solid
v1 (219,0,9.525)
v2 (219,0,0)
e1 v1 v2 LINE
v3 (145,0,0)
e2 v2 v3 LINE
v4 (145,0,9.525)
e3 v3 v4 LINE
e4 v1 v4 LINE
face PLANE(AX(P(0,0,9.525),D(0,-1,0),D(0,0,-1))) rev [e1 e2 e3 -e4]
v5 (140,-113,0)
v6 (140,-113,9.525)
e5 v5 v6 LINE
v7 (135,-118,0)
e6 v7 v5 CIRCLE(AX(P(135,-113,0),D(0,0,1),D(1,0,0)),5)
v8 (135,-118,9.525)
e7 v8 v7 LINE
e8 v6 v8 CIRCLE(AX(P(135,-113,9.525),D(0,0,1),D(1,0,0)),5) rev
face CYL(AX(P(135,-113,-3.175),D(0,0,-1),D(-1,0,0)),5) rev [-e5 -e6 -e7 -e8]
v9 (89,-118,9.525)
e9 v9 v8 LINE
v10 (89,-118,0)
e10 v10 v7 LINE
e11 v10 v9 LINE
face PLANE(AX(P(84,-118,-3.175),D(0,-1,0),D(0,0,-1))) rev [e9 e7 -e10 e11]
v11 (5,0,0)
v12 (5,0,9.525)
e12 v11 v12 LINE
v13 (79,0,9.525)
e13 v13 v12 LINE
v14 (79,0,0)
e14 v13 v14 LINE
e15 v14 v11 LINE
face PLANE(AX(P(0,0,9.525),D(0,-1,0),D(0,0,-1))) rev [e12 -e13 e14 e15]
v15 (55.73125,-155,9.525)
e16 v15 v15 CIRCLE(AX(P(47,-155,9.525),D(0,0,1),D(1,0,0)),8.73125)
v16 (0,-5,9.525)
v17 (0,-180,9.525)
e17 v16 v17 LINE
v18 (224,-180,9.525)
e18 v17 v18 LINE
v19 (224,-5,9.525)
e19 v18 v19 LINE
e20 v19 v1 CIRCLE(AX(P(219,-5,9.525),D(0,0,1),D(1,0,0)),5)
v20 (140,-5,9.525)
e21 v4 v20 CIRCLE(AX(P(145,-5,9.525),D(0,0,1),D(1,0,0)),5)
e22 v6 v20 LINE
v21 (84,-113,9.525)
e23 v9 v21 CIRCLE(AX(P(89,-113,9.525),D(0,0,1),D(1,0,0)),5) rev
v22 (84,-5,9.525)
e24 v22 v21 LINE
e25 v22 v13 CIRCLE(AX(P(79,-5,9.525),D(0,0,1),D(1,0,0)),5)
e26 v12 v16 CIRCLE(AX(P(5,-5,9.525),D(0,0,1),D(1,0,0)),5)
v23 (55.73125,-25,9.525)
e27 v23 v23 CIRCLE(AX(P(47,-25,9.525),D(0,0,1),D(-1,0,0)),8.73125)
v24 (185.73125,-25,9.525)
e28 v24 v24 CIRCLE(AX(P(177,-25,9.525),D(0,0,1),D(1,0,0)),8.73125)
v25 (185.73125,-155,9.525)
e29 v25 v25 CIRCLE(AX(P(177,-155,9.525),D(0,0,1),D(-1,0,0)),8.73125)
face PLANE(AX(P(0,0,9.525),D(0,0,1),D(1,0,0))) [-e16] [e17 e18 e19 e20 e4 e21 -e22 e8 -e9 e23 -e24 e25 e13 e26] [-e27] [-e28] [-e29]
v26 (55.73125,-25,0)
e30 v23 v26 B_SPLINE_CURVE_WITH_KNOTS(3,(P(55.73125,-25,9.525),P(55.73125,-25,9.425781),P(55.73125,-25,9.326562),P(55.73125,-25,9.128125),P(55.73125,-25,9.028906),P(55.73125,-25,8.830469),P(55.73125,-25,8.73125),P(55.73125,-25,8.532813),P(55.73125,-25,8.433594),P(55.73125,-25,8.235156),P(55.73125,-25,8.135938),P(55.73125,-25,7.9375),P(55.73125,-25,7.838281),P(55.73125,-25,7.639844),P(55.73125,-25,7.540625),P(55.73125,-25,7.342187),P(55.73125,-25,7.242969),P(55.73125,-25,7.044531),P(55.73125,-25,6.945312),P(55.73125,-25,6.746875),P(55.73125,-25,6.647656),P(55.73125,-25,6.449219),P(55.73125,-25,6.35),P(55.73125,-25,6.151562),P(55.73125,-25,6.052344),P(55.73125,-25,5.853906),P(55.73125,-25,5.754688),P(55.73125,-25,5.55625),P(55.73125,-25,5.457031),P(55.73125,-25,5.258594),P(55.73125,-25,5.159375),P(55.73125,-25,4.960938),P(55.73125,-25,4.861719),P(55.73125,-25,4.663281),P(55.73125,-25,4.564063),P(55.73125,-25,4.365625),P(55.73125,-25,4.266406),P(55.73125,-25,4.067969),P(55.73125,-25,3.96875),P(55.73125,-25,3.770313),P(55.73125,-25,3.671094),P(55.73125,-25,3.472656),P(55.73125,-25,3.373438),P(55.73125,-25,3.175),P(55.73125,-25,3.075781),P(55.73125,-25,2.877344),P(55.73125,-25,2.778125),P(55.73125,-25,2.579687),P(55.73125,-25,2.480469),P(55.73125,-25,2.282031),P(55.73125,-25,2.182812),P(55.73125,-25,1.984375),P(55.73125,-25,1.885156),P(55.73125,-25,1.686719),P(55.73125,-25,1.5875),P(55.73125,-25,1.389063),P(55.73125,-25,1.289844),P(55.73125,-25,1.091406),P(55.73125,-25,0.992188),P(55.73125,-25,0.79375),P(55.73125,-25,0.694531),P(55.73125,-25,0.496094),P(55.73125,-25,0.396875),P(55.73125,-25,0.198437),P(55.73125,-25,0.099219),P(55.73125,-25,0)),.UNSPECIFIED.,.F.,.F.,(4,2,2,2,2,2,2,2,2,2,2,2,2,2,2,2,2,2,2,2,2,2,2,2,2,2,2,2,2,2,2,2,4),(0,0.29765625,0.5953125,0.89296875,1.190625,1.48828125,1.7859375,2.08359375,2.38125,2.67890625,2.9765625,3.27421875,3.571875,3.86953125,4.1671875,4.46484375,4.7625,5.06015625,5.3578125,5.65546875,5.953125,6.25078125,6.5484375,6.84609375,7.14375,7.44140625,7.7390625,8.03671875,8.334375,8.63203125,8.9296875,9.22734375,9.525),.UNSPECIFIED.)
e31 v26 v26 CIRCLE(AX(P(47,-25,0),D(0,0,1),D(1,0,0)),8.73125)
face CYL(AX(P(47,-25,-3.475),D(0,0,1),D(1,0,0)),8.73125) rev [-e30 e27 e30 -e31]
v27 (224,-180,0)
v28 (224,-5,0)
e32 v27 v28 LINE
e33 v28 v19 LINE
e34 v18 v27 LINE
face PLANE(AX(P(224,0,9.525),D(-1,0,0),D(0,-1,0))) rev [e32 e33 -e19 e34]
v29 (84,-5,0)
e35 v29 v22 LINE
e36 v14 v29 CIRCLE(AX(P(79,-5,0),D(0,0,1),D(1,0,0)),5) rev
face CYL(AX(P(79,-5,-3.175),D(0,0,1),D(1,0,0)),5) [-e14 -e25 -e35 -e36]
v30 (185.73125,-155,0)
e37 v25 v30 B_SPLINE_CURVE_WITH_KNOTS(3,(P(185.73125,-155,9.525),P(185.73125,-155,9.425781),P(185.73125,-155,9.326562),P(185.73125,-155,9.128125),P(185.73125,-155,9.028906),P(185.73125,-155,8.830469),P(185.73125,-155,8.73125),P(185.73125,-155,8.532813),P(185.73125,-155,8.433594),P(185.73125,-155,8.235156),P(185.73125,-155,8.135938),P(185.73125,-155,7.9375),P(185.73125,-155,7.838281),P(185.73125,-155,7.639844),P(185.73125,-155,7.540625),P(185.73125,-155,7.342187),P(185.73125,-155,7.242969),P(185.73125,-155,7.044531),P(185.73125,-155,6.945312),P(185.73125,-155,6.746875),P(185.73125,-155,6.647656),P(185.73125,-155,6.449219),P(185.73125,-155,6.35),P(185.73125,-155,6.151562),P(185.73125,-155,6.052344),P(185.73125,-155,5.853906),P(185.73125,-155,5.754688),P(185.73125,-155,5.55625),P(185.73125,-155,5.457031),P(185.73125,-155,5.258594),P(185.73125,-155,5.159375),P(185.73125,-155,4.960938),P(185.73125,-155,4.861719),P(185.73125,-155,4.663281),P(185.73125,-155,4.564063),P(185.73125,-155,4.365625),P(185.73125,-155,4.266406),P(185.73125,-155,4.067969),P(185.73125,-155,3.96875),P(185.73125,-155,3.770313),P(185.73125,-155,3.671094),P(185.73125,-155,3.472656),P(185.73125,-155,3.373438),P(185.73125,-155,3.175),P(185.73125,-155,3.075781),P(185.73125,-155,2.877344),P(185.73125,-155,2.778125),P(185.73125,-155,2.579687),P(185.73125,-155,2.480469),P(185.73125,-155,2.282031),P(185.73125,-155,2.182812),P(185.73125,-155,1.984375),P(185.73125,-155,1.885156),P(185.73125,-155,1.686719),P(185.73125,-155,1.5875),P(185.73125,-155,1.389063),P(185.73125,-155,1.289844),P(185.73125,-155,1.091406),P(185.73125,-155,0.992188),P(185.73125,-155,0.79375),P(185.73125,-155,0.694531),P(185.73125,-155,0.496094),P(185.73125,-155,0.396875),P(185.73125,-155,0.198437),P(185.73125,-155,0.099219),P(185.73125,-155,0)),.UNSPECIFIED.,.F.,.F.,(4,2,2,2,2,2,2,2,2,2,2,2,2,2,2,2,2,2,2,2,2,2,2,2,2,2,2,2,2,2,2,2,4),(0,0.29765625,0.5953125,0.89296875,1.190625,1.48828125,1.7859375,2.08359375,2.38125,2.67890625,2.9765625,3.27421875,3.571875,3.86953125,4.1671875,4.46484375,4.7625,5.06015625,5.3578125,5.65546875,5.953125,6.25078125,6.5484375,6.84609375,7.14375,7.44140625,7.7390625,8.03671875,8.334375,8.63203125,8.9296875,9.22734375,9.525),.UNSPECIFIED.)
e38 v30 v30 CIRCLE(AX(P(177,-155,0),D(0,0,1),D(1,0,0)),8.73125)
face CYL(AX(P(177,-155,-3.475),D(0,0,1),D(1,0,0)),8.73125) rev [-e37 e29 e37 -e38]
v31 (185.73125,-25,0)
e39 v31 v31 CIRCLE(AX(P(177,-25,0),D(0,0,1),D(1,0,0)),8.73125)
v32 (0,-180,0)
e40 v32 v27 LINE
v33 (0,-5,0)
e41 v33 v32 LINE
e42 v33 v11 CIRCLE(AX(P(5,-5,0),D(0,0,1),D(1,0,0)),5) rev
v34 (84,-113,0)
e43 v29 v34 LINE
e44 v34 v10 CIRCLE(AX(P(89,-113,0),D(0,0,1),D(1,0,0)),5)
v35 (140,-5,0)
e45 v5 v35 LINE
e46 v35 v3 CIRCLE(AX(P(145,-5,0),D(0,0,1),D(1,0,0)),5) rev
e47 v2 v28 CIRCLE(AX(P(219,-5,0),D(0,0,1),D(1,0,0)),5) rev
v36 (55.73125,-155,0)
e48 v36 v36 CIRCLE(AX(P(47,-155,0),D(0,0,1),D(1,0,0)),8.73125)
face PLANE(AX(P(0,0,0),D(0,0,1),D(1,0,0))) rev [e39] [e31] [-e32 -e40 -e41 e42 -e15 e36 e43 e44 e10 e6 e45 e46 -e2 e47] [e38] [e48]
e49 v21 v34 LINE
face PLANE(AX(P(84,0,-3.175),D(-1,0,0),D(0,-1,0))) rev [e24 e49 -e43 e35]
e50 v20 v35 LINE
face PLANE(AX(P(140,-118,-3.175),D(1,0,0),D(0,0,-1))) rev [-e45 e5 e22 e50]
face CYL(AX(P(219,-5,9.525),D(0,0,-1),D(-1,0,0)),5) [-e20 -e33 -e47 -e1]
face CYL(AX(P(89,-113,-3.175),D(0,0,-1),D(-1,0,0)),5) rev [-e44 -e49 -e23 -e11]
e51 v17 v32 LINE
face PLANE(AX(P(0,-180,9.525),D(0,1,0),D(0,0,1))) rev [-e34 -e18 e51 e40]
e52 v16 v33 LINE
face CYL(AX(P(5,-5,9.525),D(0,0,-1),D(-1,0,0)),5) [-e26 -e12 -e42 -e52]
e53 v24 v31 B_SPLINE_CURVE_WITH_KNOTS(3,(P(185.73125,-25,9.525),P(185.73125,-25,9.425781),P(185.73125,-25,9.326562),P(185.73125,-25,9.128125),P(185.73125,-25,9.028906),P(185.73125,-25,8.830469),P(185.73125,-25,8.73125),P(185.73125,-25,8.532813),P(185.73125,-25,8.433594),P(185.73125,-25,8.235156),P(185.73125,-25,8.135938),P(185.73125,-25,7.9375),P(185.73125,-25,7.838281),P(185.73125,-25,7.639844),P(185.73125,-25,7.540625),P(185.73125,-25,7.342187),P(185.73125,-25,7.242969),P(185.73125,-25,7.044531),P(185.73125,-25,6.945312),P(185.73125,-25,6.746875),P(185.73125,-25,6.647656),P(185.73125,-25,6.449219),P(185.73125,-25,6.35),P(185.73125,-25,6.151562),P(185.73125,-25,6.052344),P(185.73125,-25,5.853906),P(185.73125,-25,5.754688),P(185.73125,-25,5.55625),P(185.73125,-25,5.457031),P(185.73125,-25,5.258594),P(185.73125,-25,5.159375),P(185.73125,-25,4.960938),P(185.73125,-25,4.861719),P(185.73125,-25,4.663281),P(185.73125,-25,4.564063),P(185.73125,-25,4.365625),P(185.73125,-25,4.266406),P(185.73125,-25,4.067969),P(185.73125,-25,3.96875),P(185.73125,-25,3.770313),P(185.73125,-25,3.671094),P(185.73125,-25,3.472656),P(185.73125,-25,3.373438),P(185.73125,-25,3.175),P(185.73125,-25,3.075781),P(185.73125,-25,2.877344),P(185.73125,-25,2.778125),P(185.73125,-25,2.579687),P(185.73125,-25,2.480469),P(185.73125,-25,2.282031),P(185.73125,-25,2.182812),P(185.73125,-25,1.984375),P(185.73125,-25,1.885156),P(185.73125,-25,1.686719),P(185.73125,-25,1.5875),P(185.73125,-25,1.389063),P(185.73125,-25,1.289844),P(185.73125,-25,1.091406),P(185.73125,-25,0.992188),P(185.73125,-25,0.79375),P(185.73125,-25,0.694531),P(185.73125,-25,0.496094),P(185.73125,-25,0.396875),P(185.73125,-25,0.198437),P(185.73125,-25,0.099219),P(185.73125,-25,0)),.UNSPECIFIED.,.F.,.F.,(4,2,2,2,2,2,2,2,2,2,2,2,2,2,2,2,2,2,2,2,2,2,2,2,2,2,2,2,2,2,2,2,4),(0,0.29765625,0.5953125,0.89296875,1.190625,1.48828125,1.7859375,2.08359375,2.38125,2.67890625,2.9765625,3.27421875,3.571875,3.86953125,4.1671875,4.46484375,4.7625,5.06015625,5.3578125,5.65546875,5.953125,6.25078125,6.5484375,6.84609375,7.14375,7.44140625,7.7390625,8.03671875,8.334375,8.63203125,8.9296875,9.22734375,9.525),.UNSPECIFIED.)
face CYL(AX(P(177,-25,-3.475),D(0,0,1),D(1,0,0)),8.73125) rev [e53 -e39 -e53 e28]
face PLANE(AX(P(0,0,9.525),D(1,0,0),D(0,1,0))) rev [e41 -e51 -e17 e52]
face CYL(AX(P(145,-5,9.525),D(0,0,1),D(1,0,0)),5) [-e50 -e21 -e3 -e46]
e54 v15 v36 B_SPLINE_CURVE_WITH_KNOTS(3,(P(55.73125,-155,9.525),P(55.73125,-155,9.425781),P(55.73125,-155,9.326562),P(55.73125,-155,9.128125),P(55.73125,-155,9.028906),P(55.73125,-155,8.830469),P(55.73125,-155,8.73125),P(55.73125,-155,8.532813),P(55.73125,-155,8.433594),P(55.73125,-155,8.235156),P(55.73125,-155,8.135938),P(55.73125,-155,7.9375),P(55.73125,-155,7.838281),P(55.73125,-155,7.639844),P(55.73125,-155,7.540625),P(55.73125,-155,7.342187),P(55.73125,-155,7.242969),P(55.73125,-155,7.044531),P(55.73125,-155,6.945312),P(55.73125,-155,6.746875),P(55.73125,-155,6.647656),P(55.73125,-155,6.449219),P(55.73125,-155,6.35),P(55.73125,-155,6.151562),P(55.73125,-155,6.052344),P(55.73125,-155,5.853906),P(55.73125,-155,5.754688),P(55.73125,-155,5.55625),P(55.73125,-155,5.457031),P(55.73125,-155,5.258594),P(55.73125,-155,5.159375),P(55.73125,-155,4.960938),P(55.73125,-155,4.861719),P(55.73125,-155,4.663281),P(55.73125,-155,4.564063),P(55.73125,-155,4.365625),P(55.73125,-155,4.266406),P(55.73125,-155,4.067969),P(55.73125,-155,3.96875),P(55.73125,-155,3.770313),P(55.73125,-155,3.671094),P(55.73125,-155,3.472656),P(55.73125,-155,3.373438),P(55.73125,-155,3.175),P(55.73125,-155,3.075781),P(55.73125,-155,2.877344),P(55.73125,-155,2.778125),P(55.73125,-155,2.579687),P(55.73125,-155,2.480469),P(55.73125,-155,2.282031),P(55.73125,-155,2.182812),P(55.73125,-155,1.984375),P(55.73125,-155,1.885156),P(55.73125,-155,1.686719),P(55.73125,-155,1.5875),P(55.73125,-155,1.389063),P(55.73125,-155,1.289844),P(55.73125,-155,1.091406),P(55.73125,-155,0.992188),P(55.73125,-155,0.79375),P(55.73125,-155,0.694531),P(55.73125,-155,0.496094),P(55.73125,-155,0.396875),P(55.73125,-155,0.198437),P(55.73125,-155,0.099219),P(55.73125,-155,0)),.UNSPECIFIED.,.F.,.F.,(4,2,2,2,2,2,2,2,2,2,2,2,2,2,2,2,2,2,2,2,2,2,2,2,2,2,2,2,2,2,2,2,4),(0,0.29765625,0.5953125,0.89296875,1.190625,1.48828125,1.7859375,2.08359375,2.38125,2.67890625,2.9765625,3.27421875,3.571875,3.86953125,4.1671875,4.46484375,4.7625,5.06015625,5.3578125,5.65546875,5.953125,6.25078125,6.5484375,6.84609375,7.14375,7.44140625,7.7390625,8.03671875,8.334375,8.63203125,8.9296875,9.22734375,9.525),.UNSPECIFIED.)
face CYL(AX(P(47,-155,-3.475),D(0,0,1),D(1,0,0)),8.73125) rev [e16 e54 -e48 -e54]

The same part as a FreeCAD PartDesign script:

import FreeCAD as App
import Part
import Sketcher

V = App.Vector
Q = App.Units.Quantity


def edges_at(feature, points):
    """Names of the edges that pass closest to the given points."""
    edges = feature.Shape.Edges
    near = lambda p: min(range(len(edges)), key=lambda i: edges[i].distToShape(Part.Vertex(*p))[0])
    return sorted({f"Edge{near(p) + 1}" for p in points})


def add_polygon(sketch, points):
    """Adds a closed chain of lines whose ends are joined by coincident constraints."""
    first, n = sketch.GeometryCount, len(points)
    for a, b in zip(points, points[1:] + points[:1]):
        sketch.addGeometry(Part.LineSegment(App.Vector(*a, 0), App.Vector(*b, 0)), False)
    for i in range(n):
        sketch.addConstraint(Sketcher.Constraint("Coincident", first + i, 2, first + (i + 1) % n, 1))

doc = App.newDocument("Part")
body = doc.addObject("PartDesign::Body", "Body")

sketch1 = body.newObject("Sketcher::SketchObject", "Sketch")
sketch1.AttachmentSupport = (doc.getObject("XY_Plane"), [""])
sketch1.MapMode = "FlatFace"
add_polygon(sketch1, [(0, 0), (0, -180), (224, -180), (224, 0)])
sketch1.addConstraint([
    Sketcher.Constraint("Vertical", 0),
    Sketcher.Constraint("Horizontal", 1),
    Sketcher.Constraint("Vertical", 2),
    Sketcher.Constraint("Horizontal", 3),
    Sketcher.Constraint("Coincident", 3, 2, -1, 1),
    Sketcher.Constraint("DistanceX", 1, 1, 1, 2, Q("224 mm")),
    Sketcher.Constraint("DistanceY", 0, 2, 0, 1, Q("180 mm")),
])
pad1 = body.newObject("PartDesign::Pad", "Pad")
pad1.Profile = sketch1
pad1.Length = 9.525

sketch2 = body.newObject("Sketcher::SketchObject", "Sketch001")
sketch2.AttachmentSupport = (doc.getObject("XY_Plane"), [""])
sketch2.MapMode = "FlatFace"
sketch2.AttachmentOffset = App.Placement(V(0, 0, 9.525), App.Rotation())
add_polygon(sketch2, [(84, 0), (84, -118), (140, -118), (140, 0)])
sketch2.addConstraint([
    Sketcher.Constraint("Vertical", 0),
    Sketcher.Constraint("Horizontal", 1),
    Sketcher.Constraint("Vertical", 2),
    Sketcher.Constraint("Horizontal", 3),
    Sketcher.Constraint("PointOnObject", 2, 2, -1),
    Sketcher.Constraint("DistanceX", 1, 1, 1, 2, Q("56 mm")),
    Sketcher.Constraint("DistanceY", 0, 2, 0, 1, Q("118 mm")),
    Sketcher.Constraint("DistanceX", -1, 1, 0, 2, Q("84 mm")),
])
pocket1 = body.newObject("PartDesign::Pocket", "Pocket")
pocket1.Profile = sketch2
pocket1.Length = 12.7
doc.recompute()

fillet = body.newObject("PartDesign::Fillet", "Fillet")
fillet.Base = (pocket1, edges_at(pocket1, [
    (84, 0, 4.763),
    (140, 0, 4.763),
    (140, -118, 4.763),
    (84, -118, 4.763),
    (0, 0, 4.763),
    (224, 0, 4.763),
]))
fillet.Radius = 5

sketch3 = body.newObject("Sketcher::SketchObject", "Sketch002")
sketch3.AttachmentSupport = (doc.getObject("XY_Plane"), [""])
sketch3.MapMode = "FlatFace"
sketch3.AttachmentOffset = App.Placement(V(0, 0, 9.525), App.Rotation())
sketch3.addGeometry([
    Part.Circle(V(177, -25, 0), V(0, 0, 1), 8.73125),
    Part.Circle(V(47, -25, 0), V(0, 0, 1), 8.73125),
    Part.Circle(V(47, -155, 0), V(0, 0, 1), 8.73125),
    Part.Circle(V(177, -155, 0), V(0, 0, 1), 8.73125),
], False)
sketch3.addConstraint([
    Sketcher.Constraint("Equal", 0, 1),
    Sketcher.Constraint("Equal", 1, 2),
    Sketcher.Constraint("Equal", 2, 3),
    Sketcher.Constraint("Horizontal", 0, 3, 1, 3),
    Sketcher.Constraint("Horizontal", 2, 3, 3, 3),
    Sketcher.Constraint("Vertical", 1, 3, 2, 3),
    Sketcher.Constraint("Vertical", 0, 3, 3, 3),
    Sketcher.Constraint("DistanceX", -1, 1, 0, 3, Q("177 mm")),
    Sketcher.Constraint("DistanceY", 0, 3, -1, 1, Q("25 mm")),
    Sketcher.Constraint("DistanceX", -1, 1, 1, 3, Q("47 mm")),
    Sketcher.Constraint("DistanceY", 2, 3, -1, 1, Q("155 mm")),
    Sketcher.Constraint("Diameter", 0, Q("17.4625 mm")),
])
pocket2 = body.newObject("PartDesign::Pocket", "Pocket001")
pocket2.Profile = sketch3
pocket2.Length = 13

doc.recompute()
